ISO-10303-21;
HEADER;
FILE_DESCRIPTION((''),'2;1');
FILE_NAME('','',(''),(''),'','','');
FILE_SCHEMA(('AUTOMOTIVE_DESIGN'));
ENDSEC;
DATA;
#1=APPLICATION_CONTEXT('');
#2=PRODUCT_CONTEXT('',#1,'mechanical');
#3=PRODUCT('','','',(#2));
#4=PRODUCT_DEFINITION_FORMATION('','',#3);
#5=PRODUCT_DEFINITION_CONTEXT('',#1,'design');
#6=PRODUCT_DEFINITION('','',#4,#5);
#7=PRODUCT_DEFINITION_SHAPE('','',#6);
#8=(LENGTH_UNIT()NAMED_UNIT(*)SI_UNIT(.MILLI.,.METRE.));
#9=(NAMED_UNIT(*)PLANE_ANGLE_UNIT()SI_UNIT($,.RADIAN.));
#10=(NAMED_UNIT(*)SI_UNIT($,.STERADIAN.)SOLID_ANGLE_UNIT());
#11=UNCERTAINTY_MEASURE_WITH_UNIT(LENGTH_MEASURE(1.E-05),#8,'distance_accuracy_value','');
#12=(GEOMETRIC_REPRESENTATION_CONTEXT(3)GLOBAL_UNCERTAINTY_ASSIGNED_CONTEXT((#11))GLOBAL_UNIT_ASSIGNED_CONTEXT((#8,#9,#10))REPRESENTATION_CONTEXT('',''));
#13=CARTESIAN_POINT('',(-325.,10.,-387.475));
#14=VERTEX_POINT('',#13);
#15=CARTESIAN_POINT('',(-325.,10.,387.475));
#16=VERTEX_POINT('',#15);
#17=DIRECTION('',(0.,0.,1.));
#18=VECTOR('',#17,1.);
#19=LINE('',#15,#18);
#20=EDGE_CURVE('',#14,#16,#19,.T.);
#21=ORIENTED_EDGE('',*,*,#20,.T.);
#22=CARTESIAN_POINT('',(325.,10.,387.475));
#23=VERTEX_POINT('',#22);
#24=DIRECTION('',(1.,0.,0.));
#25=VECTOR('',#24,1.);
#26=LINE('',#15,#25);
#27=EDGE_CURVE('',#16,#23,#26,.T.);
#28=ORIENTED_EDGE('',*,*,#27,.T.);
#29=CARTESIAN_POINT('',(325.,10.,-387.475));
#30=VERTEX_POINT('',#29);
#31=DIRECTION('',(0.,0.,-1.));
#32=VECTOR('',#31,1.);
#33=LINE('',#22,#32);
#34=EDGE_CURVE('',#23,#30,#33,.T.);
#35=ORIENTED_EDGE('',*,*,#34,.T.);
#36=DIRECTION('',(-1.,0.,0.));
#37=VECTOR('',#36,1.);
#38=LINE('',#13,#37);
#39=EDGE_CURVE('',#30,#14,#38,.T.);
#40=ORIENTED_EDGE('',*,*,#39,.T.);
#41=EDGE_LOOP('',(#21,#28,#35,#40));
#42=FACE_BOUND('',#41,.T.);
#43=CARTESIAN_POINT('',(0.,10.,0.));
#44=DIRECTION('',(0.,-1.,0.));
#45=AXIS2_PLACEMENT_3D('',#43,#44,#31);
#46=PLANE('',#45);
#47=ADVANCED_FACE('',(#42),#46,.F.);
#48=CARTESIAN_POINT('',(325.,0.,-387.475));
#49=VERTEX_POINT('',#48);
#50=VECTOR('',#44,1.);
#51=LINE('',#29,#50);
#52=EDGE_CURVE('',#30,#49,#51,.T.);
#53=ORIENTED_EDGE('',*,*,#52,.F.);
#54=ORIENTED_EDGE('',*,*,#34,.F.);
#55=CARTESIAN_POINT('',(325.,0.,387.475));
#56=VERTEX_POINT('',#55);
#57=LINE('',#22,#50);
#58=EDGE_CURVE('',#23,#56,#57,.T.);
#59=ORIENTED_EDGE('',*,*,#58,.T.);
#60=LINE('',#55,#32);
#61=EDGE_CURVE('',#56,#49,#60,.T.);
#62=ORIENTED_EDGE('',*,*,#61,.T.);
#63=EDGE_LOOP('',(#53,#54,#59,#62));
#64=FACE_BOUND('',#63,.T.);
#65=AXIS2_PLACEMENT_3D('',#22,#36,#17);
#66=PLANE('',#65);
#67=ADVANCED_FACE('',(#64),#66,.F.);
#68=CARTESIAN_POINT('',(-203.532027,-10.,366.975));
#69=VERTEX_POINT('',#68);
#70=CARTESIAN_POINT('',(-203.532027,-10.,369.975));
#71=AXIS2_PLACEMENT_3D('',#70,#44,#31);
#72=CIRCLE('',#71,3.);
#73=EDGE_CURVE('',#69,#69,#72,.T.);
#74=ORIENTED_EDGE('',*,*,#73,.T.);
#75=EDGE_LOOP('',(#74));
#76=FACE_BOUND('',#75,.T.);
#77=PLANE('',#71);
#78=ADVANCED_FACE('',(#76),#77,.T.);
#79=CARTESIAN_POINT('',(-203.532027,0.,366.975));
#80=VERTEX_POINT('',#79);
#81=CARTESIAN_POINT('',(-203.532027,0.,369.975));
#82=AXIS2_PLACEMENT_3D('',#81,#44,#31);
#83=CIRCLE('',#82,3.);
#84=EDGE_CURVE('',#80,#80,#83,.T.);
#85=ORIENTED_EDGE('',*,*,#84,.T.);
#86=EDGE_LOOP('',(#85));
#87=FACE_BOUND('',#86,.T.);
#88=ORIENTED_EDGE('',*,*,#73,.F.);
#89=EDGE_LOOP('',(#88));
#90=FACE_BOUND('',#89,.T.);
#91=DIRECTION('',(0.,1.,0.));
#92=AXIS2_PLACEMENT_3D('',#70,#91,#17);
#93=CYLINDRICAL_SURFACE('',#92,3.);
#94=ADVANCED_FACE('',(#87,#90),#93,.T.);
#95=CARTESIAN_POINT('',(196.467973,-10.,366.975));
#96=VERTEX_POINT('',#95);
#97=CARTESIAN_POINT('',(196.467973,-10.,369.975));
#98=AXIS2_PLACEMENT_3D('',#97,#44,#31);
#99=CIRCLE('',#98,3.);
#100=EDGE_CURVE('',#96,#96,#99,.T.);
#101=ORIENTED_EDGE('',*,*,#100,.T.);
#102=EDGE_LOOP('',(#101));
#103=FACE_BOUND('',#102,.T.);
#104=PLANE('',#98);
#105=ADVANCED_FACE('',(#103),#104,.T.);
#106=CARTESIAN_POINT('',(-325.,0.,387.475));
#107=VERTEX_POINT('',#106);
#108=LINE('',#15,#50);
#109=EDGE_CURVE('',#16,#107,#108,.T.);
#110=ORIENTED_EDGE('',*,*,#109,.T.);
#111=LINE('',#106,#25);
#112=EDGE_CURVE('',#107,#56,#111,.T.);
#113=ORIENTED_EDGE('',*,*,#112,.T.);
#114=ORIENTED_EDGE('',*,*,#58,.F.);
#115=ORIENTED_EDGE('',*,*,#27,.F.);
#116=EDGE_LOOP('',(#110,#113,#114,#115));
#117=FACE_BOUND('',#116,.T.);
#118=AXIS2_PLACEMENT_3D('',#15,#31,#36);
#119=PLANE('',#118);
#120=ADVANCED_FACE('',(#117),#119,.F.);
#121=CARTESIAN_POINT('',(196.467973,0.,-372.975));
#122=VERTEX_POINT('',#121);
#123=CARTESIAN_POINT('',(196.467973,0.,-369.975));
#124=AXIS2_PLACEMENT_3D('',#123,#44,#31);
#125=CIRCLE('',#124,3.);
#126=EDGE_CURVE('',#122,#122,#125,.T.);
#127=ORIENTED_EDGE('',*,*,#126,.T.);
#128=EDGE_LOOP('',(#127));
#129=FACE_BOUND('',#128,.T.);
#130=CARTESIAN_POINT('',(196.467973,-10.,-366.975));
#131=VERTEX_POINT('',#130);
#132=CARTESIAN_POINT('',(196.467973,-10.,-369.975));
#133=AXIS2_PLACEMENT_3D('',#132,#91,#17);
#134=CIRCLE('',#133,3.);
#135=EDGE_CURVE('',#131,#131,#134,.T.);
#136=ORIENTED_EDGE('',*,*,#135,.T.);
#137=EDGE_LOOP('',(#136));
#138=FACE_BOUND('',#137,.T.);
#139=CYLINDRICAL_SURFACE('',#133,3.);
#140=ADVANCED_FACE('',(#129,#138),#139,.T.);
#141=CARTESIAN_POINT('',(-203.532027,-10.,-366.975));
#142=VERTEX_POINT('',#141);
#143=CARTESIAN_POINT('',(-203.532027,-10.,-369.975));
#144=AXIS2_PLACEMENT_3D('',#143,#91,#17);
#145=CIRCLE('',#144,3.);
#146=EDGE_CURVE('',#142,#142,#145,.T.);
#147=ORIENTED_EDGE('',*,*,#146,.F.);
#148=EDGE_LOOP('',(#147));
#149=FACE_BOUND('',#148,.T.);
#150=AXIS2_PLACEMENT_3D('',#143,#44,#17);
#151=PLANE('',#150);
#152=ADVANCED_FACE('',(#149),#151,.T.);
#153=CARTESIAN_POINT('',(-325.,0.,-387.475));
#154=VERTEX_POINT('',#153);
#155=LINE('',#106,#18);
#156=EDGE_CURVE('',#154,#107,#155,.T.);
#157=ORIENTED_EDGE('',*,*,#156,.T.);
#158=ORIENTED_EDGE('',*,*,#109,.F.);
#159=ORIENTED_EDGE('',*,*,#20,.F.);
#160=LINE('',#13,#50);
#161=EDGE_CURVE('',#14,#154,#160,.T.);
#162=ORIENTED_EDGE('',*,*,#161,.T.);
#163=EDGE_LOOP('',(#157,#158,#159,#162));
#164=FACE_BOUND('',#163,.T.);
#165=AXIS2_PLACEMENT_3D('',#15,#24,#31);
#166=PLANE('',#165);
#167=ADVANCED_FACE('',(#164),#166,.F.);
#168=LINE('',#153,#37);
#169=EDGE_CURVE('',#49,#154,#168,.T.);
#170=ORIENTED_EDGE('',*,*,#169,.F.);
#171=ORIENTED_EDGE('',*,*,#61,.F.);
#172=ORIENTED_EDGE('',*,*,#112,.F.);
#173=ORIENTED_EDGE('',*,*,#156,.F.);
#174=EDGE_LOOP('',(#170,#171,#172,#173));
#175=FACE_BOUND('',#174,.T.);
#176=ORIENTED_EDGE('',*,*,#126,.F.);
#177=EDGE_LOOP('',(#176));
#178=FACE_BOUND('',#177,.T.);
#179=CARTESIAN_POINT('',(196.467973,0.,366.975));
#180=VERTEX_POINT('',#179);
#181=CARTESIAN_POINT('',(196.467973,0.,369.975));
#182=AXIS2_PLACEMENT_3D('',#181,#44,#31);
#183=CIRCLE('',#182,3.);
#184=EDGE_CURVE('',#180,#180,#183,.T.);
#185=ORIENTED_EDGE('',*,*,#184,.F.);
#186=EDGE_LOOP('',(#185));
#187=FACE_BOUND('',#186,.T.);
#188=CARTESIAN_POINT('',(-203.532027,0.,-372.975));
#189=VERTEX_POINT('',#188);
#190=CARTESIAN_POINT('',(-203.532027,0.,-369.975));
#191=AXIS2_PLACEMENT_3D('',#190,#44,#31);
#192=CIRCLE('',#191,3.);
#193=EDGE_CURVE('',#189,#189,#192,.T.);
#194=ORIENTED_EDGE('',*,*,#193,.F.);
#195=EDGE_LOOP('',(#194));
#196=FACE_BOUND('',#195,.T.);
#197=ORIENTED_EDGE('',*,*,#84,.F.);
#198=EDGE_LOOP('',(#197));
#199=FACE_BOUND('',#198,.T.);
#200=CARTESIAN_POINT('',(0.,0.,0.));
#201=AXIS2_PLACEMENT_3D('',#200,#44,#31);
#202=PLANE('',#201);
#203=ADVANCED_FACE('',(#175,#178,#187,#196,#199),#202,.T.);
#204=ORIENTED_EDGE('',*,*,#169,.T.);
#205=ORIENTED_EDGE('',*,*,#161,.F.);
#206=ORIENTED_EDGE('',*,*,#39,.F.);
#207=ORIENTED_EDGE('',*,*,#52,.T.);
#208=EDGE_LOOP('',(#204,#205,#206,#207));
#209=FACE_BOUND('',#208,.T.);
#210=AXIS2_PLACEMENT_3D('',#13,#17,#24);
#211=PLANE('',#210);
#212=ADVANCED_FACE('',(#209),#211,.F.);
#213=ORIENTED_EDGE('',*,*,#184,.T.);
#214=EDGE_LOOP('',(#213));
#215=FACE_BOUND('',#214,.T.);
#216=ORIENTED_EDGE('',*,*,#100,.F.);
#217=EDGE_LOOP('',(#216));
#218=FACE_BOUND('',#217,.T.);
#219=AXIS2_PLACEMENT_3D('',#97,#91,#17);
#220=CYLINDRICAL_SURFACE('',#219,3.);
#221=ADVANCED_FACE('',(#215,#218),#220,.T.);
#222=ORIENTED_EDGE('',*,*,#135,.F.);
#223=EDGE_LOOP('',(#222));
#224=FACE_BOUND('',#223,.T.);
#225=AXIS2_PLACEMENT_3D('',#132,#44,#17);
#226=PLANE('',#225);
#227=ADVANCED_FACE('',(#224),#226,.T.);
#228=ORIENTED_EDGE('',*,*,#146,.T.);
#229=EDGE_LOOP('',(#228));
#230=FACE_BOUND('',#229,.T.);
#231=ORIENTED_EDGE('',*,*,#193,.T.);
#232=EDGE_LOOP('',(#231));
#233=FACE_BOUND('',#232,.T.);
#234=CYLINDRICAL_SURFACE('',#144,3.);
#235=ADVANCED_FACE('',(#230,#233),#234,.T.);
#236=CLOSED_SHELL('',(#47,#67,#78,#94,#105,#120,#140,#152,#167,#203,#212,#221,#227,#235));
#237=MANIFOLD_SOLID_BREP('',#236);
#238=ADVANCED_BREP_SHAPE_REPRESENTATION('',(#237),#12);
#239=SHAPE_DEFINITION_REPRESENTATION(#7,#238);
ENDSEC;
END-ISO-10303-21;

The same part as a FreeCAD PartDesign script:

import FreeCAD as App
import Part
import Sketcher
Q = App.Units.Quantity

doc = App.newDocument("Part")
params = doc.addObject("Spreadsheet::Sheet", "Params")
for row, (alias, value) in enumerate([
    ("sketch1_width", "650 mm"),
    ("sketch1_height", "774.95 mm"),
    ("pad1_length", "10 mm"),
    ("sketch2_diameter", "6 mm"),
    ("pad2_length", "10 mm"),
], start=1):
    params.set(f"A{row}", alias)
    params.set(f"B{row}", "=" + value)
    params.setAlias(f"B{row}", alias)

body = doc.addObject("PartDesign::Body", "Body")

# Sketch on XZ plane
sketch1 = body.newObject("Sketcher::SketchObject", "Sketch")
sketch1.AttachmentSupport = (doc.getObject("XZ_Plane"), [""])
sketch1.MapMode = "FlatFace"
sketch1.addGeometry([
    Part.LineSegment(App.Vector(-325, -387.475, 0), App.Vector(-325, 387.475, 0)),
    Part.LineSegment(App.Vector(-325, 387.475, 0), App.Vector(325, 387.475, 0)),
    Part.LineSegment(App.Vector(325, 387.475, 0), App.Vector(325, -387.475, 0)),
    Part.LineSegment(App.Vector(325, -387.475, 0), App.Vector(-325, -387.475, 0)),
], False)
sketch1.addConstraint([
    Sketcher.Constraint("Coincident", 0, 2, 1, 1),
    Sketcher.Constraint("Coincident", 1, 2, 2, 1),
    Sketcher.Constraint("Coincident", 2, 2, 3, 1),
    Sketcher.Constraint("Coincident", 3, 2, 0, 1),
    Sketcher.Constraint("Vertical", 0),
    Sketcher.Constraint("Horizontal", 1),
    Sketcher.Constraint("Vertical", 2),
    Sketcher.Constraint("Horizontal", 3),
    Sketcher.Constraint("Symmetric", 0, 2, 2, 2, -1, 1),
    Sketcher.Constraint("DistanceX", 1, 1, 1, 2, Q("650 mm")),
    Sketcher.Constraint("DistanceY", 0, 1, 0, 2, Q("774.95 mm")),
])
sketch1.setExpression("Constraints[9]", "Params.sketch1_width")
sketch1.setExpression("Constraints[10]", "Params.sketch1_height")
pad1 = body.newObject("PartDesign::Pad", "Pad")
pad1.Profile = sketch1
pad1.setExpression("Length", "Params.pad1_length")
pad1.Reversed = True

# Sketch on XZ plane
sketch2 = body.newObject("Sketcher::SketchObject", "Sketch001")
sketch2.AttachmentSupport = (doc.getObject("XZ_Plane"), [""])
sketch2.MapMode = "FlatFace"
sketch2.addGeometry([
    Part.Circle(App.Vector(-203.532027, 369.975, 0), App.Vector(0, 0, 1), 3),
    Part.Circle(App.Vector(196.467973, 369.975, 0), App.Vector(0, 0, 1), 3),
], False)
sketch2.addConstraint([
    Sketcher.Constraint("Equal", 0, 1),
    Sketcher.Constraint("Horizontal", 0, 3, 1, 3),
    Sketcher.Constraint("Diameter", 0, Q("6 mm")),
    Sketcher.Constraint("DistanceX", 0, 3, 1, 3, Q("400 mm")),
    Sketcher.Constraint("DistanceY", -1, 1, 0, 3, Q("369.975 mm")),
    Sketcher.Constraint("DistanceX", 0, 3, -1, 1, Q("203.532027 mm")),
])
sketch2.setExpression("Constraints[2]", "Params.sketch2_diameter")
pad2 = body.newObject("PartDesign::Pad", "Pad001")
pad2.Profile = sketch2
pad2.setExpression("Length", "Params.pad2_length")
doc.recompute()

mirrored = body.newObject("PartDesign::Mirrored", "Mirrored")
mirrored.Originals = [pad2]
mirrored.MirrorPlane = (doc.getObject("XY_Plane"), [""])
body.Tip = mirrored

doc.recompute()
